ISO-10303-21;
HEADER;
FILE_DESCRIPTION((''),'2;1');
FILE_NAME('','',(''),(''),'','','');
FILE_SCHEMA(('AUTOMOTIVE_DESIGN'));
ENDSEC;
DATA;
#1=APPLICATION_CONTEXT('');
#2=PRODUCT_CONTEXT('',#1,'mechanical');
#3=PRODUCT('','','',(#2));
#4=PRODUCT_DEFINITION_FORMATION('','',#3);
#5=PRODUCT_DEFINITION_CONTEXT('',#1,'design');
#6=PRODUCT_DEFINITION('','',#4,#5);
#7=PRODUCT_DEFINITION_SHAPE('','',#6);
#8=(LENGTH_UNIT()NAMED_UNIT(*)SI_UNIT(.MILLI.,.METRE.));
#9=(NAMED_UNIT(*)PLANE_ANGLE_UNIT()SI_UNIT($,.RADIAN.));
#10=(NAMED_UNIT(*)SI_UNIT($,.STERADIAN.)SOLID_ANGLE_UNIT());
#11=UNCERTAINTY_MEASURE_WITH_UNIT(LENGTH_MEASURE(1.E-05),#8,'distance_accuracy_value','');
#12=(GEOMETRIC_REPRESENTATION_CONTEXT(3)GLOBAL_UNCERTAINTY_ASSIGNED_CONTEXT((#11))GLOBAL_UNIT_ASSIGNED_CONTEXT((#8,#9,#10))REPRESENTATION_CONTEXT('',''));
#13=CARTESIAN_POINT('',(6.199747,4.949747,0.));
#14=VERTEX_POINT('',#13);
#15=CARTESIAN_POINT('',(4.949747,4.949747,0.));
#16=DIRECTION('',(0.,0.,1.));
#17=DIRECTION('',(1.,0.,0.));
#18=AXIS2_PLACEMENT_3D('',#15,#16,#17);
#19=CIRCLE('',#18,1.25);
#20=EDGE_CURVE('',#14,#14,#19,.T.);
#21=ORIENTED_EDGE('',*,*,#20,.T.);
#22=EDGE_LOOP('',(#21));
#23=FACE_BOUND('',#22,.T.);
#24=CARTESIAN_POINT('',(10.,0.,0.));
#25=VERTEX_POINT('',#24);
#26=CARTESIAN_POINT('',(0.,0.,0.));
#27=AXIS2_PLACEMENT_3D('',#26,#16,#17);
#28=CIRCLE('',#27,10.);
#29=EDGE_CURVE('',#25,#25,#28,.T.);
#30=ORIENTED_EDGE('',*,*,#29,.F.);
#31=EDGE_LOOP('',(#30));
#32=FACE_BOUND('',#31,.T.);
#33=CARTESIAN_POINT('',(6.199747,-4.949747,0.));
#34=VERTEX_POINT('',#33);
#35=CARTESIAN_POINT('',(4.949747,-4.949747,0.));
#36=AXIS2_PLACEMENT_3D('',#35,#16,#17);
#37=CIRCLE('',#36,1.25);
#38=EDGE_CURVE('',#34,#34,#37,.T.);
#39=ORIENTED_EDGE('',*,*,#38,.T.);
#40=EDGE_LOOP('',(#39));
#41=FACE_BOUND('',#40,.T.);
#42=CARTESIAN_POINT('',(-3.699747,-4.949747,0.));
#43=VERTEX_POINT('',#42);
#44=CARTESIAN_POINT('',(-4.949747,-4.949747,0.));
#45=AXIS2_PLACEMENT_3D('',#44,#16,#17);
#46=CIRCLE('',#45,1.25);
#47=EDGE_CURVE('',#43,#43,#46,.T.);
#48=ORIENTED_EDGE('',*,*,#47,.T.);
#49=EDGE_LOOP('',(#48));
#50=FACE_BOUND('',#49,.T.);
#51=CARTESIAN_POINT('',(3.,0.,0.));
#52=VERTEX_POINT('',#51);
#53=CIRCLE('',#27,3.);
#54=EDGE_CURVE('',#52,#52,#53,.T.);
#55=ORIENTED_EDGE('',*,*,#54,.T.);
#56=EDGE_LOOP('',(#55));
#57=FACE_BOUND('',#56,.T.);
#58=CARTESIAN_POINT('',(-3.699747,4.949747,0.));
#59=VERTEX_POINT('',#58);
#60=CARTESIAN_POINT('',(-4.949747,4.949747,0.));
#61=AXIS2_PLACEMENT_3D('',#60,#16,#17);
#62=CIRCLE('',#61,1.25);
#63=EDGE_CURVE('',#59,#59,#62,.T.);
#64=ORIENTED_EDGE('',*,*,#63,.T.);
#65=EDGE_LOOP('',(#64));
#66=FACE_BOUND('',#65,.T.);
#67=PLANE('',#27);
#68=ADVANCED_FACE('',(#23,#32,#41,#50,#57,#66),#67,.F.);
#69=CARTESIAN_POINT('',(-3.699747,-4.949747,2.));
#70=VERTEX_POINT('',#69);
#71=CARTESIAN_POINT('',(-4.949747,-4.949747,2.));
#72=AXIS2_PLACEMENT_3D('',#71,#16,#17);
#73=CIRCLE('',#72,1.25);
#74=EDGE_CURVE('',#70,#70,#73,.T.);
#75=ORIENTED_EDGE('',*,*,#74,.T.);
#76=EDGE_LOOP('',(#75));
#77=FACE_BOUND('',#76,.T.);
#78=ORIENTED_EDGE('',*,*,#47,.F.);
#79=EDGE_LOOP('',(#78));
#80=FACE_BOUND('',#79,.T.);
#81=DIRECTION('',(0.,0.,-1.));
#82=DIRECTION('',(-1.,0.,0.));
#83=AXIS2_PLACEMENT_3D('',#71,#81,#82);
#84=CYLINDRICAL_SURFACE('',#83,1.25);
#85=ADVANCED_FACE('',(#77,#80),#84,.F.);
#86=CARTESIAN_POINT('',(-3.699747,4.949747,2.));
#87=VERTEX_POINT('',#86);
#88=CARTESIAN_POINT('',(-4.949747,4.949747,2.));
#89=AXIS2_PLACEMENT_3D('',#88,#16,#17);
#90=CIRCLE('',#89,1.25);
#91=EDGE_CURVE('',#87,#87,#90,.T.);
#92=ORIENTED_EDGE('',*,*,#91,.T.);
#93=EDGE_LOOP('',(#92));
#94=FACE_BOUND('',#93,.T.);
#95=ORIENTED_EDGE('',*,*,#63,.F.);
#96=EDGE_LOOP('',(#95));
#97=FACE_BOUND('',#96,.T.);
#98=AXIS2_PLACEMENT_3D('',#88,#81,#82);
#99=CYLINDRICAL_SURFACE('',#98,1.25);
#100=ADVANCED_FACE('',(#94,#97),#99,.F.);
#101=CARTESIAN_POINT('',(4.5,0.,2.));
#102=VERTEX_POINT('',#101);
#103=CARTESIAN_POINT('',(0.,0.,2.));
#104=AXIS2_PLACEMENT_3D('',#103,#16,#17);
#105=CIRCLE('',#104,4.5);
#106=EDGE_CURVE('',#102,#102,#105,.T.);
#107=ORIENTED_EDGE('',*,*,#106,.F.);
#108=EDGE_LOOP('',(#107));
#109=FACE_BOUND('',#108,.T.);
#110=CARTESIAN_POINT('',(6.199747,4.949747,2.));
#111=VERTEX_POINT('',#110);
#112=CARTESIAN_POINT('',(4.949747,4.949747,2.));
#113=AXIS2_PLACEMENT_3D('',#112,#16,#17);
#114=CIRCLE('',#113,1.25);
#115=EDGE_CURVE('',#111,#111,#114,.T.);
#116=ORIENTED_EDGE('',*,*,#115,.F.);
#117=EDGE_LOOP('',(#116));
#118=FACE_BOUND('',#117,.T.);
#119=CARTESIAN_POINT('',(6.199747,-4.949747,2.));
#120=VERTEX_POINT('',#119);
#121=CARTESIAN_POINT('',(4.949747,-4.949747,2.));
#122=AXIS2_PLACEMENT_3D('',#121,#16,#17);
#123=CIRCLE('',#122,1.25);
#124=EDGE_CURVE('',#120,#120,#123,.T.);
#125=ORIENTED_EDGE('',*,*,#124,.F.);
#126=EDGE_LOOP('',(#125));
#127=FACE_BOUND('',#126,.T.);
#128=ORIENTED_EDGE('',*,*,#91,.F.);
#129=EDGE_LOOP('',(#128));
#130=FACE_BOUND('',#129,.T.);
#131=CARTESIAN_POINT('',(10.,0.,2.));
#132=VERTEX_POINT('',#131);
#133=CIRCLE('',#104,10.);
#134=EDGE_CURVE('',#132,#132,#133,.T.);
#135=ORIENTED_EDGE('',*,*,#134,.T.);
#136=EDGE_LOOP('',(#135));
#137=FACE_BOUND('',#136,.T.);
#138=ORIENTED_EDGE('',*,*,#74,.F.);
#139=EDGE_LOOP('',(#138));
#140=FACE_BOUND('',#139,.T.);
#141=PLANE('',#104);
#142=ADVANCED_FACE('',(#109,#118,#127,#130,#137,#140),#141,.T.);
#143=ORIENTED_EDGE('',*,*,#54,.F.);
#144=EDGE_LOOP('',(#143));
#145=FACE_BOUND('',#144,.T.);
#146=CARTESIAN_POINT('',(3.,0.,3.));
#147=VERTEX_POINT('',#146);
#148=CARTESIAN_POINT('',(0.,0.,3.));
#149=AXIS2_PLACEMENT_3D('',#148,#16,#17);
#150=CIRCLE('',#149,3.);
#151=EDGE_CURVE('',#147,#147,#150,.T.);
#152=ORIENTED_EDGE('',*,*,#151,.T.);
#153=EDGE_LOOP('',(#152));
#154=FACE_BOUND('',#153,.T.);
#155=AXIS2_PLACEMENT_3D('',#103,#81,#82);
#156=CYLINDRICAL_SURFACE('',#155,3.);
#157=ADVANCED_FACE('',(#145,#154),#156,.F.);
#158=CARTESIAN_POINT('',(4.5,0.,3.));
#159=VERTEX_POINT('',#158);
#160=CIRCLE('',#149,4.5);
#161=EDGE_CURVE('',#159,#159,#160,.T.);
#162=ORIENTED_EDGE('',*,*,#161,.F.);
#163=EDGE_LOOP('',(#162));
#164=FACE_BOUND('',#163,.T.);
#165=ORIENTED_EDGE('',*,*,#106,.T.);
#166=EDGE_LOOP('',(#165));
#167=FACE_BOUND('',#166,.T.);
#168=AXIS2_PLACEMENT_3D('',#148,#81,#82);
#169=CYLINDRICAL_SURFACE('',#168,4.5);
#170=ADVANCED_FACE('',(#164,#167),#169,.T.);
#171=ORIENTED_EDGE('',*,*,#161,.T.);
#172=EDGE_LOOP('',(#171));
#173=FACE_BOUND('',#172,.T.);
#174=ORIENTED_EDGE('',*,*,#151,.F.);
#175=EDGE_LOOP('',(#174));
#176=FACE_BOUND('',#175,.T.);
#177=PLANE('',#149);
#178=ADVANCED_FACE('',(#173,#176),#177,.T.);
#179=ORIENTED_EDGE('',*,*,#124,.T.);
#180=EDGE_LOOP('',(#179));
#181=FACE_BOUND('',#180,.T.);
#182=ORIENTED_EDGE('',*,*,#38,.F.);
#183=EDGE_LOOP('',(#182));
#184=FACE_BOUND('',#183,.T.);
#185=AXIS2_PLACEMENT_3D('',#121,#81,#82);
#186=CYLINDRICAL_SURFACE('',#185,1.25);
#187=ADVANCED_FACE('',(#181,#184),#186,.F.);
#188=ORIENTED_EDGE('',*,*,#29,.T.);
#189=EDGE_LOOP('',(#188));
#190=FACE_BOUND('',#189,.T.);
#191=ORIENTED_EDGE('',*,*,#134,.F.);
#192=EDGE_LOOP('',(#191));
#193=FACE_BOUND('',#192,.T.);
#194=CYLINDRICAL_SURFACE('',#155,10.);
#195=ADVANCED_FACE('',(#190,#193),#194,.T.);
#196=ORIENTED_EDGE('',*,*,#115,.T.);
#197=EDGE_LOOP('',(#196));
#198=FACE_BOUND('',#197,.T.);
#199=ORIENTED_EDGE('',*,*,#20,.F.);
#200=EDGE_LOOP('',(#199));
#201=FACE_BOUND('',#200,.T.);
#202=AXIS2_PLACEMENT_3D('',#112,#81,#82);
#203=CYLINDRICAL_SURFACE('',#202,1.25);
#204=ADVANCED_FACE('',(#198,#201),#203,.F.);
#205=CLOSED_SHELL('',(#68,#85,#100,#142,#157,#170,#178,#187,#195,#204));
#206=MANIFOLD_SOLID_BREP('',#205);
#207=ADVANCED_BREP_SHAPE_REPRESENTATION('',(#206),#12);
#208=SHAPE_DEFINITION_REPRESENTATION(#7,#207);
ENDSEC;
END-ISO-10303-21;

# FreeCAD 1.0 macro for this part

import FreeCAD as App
import Part
import Sketcher
from FreeCAD import Vector

doc = App.newDocument("Part")
params = doc.addObject("Spreadsheet::Sheet", "Params")
for row, (alias, value) in enumerate([
    ("sketch1_diameter", "20 mm"),
    ("sketch1_diameter2", "6 mm"),
    ("sketch1_diameter3", "2.5 mm"),
    ("pad1_length", "2 mm"),
    ("sketch2_diameter", "9 mm"),
    ("sketch2_diameter2", "6 mm"),
    ("pad2_length", "1 mm"),
], start=1):
    params.set(f"A{row}", alias)
    params.set(f"B{row}", "=" + value)
    params.setAlias(f"B{row}", alias)

body = doc.addObject("PartDesign::Body", "Body")

sketch1 = body.newObject("Sketcher::SketchObject", "Sketch")
sketch1.AttachmentSupport = (doc.getObject("XY_Plane"), [""])
sketch1.MapMode = "FlatFace"
sketch1.addGeometry(Part.Circle(Vector(0, 0, 0), Vector(0, 0, 1), 10), False)
sketch1.addGeometry(Part.Circle(Vector(-4.9, -4.9, 0), Vector(0, 0, 1), 1.2), False)
sketch1.addGeometry(Part.Circle(Vector(4.9, -4.9, 0), Vector(0, 0, 1), 1.2), False)
sketch1.addGeometry(Part.Circle(Vector(-4.9, 4.9, 0), Vector(0, 0, 1), 1.2), False)
sketch1.addGeometry(Part.Circle(Vector(0, 0, 0), Vector(0, 0, 1), 3), False)
sketch1.addGeometry(Part.Circle(Vector(4.9, 4.9, 0), Vector(0, 0, 1), 1.2), False)
sketch1.addConstraint(Sketcher.Constraint("Coincident", 0, 3, -1, 1))
sketch1.addConstraint(Sketcher.Constraint("Coincident", 4, 3, -1, 1))
sketch1.addConstraint(Sketcher.Constraint("Equal", 1, 2))
sketch1.addConstraint(Sketcher.Constraint("Equal", 2, 3))
sketch1.addConstraint(Sketcher.Constraint("Equal", 3, 5))
sketch1.addConstraint(Sketcher.Constraint("Symmetric", 2, 3, 3, 3, -1, 1))
sketch1.addConstraint(Sketcher.Constraint("Symmetric", 1, 3, 5, 3, -1, 1))
sketch1.addConstraint(Sketcher.Constraint("Symmetric", 1, 3, 2, 3, -2))
sketch1.addConstraint(Sketcher.Constraint("Diameter", 0, 20.0))
sketch1.addConstraint(Sketcher.Constraint("Diameter", 4, 6.0))
sketch1.addConstraint(Sketcher.Constraint("Diameter", 1, 2.5))
sketch1.addConstraint(Sketcher.Constraint("DistanceX", 1, 3, -1, 1, 4.949747))
sketch1.addConstraint(Sketcher.Constraint("DistanceY", 1, 3, -1, 1, 4.949747))
sketch1.setExpression("Constraints[8]", "Params.sketch1_diameter")
sketch1.setExpression("Constraints[9]", "Params.sketch1_diameter2")
sketch1.setExpression("Constraints[10]", "Params.sketch1_diameter3")
pad1 = body.newObject("PartDesign::Pad", "Pad")
pad1.Profile = sketch1
pad1.setExpression("Length", "Params.pad1_length")

sketch2 = body.newObject("Sketcher::SketchObject", "Sketch001")
sketch2.AttachmentSupport = (doc.getObject("XY_Plane"), [""])
sketch2.MapMode = "FlatFace"
sketch2.AttachmentOffset = App.Placement(Vector(0, 0, 2), App.Rotation())
sketch2.addGeometry(Part.Circle(Vector(0, 0, 0), Vector(0, 0, 1), 4.5), False)
sketch2.addGeometry(Part.Circle(Vector(0, 0, 0), Vector(0, 0, 1), 3), False)
sketch2.addConstraint(Sketcher.Constraint("Coincident", 0, 3, -1, 1))
sketch2.addConstraint(Sketcher.Constraint("Coincident", 1, 3, -1, 1))
sketch2.addConstraint(Sketcher.Constraint("Diameter", 0, 9.0))
sketch2.addConstraint(Sketcher.Constraint("Diameter", 1, 6.0))
sketch2.setExpression("Constraints[2]", "Params.sketch2_diameter")
sketch2.setExpression("Constraints[3]", "Params.sketch2_diameter2")
pad2 = body.newObject("PartDesign::Pad", "Pad001")
pad2.Profile = sketch2
pad2.setExpression("Length", "Params.pad2_length")

doc.recompute()
